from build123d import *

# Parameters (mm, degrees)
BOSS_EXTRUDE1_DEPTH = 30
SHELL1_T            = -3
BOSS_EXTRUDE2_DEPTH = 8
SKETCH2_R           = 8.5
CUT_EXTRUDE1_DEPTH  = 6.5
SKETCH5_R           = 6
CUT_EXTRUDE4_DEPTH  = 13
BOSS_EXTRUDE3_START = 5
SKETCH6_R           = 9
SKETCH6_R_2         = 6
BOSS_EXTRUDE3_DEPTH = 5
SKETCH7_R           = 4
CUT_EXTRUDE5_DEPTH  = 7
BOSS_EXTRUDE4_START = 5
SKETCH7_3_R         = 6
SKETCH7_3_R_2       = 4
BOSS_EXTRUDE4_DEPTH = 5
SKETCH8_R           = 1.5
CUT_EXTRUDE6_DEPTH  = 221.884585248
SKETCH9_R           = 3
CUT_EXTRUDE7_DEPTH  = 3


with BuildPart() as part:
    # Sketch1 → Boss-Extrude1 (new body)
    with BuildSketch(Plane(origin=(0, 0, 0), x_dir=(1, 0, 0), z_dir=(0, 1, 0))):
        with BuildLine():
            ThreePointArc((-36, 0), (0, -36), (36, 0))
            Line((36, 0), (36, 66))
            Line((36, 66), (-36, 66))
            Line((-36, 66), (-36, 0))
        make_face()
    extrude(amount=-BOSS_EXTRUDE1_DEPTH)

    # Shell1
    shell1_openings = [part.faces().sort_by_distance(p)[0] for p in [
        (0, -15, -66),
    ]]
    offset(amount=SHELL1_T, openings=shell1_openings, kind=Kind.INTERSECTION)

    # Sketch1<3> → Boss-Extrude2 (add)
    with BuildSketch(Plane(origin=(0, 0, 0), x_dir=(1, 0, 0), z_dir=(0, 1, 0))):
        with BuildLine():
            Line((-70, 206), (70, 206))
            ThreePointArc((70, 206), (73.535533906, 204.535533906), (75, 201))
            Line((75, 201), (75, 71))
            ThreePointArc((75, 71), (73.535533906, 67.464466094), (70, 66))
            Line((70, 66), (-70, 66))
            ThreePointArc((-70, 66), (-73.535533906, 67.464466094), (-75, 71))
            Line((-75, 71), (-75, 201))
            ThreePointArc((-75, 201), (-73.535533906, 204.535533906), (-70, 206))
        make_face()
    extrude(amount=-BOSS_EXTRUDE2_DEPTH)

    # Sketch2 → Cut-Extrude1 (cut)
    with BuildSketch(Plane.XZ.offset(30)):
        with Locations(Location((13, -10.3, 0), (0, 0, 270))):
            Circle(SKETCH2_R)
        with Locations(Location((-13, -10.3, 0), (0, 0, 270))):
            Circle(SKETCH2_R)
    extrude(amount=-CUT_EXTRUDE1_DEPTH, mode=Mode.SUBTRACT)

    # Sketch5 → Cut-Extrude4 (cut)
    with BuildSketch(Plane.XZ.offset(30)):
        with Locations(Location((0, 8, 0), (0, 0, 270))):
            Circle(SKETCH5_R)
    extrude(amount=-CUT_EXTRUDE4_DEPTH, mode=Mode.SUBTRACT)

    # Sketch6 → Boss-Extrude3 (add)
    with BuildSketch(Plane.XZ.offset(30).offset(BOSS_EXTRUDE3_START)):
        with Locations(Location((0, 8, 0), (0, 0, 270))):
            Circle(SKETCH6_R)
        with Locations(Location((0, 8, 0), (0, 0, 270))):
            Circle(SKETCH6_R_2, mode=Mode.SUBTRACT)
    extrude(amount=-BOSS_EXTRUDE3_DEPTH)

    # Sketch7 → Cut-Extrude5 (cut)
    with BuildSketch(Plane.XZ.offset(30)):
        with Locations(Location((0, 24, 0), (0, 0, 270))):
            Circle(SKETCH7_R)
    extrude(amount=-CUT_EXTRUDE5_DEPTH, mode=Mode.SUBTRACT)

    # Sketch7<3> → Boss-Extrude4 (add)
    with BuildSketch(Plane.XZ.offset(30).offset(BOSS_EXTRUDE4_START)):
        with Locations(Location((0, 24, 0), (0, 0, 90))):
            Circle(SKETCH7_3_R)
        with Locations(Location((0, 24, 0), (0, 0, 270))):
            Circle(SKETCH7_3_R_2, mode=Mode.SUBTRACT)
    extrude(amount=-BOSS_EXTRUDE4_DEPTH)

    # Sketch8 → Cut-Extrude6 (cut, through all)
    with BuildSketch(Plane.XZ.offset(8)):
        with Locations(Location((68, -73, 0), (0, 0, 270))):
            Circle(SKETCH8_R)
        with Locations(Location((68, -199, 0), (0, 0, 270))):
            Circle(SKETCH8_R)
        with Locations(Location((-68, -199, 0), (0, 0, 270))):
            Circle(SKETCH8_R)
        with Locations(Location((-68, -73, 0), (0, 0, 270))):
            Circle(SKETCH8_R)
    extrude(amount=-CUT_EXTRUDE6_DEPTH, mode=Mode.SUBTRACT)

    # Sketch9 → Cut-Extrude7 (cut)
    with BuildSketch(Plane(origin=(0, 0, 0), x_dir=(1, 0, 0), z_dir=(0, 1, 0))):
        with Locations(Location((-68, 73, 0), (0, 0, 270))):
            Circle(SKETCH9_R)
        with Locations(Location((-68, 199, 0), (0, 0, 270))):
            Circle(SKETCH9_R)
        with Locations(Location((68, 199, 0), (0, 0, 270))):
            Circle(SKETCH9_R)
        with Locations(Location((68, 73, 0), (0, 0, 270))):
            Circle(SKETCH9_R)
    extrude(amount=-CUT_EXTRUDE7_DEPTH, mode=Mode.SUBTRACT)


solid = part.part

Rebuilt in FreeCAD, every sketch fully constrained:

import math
import FreeCAD as App
import Part
import Sketcher


def faces_at(feature, points):
    """Names of the faces that lie closest to the given points."""
    faces = feature.Shape.Faces
    near = lambda p: min(range(len(faces)), key=lambda i: faces[i].distToShape(Part.Vertex(*p))[0])
    return sorted({f"Face{near(p) + 1}" for p in points})

doc = App.newDocument("Part")
body = doc.addObject("PartDesign::Body", "Body")

# Sketch on XZ plane
sketch1 = doc.addObject("Sketcher::SketchObject", "Sketch")
body.addObject(sketch1)
sketch1.AttachmentSupport = (doc.XZ_Plane, [""])
sketch1.MapMode = "FlatFace"
sketch1.addGeometry(Part.ArcOfCircle(Part.Circle(App.Vector(0, 0, 0), App.Vector(0, 0, 1), 36), math.radians(0), math.radians(180)), False)
sketch1.addGeometry(Part.LineSegment(App.Vector(36, 0, 0), App.Vector(36, -66, 0)), False)
sketch1.addGeometry(Part.LineSegment(App.Vector(36, -66, 0), App.Vector(-36, -66, 0)), False)
sketch1.addGeometry(Part.LineSegment(App.Vector(-36, -66, 0), App.Vector(-36, 0, 0)), False)
sketch1.addConstraint(Sketcher.Constraint("Tangent", 0, 1, 1, 1))
sketch1.addConstraint(Sketcher.Constraint("Coincident", 1, 2, 2, 1))
sketch1.addConstraint(Sketcher.Constraint("Coincident", 2, 2, 3, 1))
sketch1.addConstraint(Sketcher.Constraint("Tangent", 3, 2, 0, 2))
sketch1.addConstraint(Sketcher.Constraint("Vertical", 1))
sketch1.addConstraint(Sketcher.Constraint("Horizontal", 2))
sketch1.addConstraint(Sketcher.Constraint("Vertical", 3))
sketch1.addConstraint(Sketcher.Constraint("Coincident", 0, 3, -1, 1))
sketch1.addConstraint(Sketcher.Constraint("Radius", 0, 36.0))
sketch1.addConstraint(Sketcher.Constraint("DistanceY", 1, 2, 1, 1, 66.0))
pad1 = doc.addObject("PartDesign::Pad", "Pad")
body.addObject(pad1)
pad1.Profile = sketch1
pad1.Length = 30
doc.recompute()

thickness = doc.addObject("PartDesign::Thickness", "Thickness")
body.addObject(thickness)
thickness.Base = (pad1, faces_at(pad1, [(0, -15, -66)]))
thickness.Value = 3
thickness.Reversed = True
thickness.Join = "Intersection"

# Sketch on XZ plane
sketch2 = doc.addObject("Sketcher::SketchObject", "Sketch001")
body.addObject(sketch2)
sketch2.AttachmentSupport = (doc.XZ_Plane, [""])
sketch2.MapMode = "FlatFace"
sketch2.addGeometry(Part.LineSegment(App.Vector(70, -206, 0), App.Vector(-70, -206, 0)), False)
sketch2.addGeometry(Part.ArcOfCircle(Part.Circle(App.Vector(-70, -201, 0), App.Vector(0, 0, 1), 5), math.radians(180), math.radians(270)), False)
sketch2.addGeometry(Part.LineSegment(App.Vector(-75, -201, 0), App.Vector(-75, -71, 0)), False)
sketch2.addGeometry(Part.ArcOfCircle(Part.Circle(App.Vector(-70, -71, 0), App.Vector(0, 0, 1), 5), math.radians(90), math.radians(180)), False)
sketch2.addGeometry(Part.LineSegment(App.Vector(-70, -66, 0), App.Vector(70, -66, 0)), False)
sketch2.addGeometry(Part.ArcOfCircle(Part.Circle(App.Vector(70, -71, 0), App.Vector(0, 0, 1), 5), math.radians(0), math.radians(90)), False)
sketch2.addGeometry(Part.LineSegment(App.Vector(75, -71, 0), App.Vector(75, -201, 0)), False)
sketch2.addGeometry(Part.ArcOfCircle(Part.Circle(App.Vector(70, -201, 0), App.Vector(0, 0, 1), 5), math.radians(-90), math.radians(0)), False)
sketch2.addConstraint(Sketcher.Constraint("Tangent", 0, 2, 1, 2))
sketch2.addConstraint(Sketcher.Constraint("Tangent", 1, 1, 2, 1))
sketch2.addConstraint(Sketcher.Constraint("Tangent", 2, 2, 3, 2))
sketch2.addConstraint(Sketcher.Constraint("Tangent", 3, 1, 4, 1))
sketch2.addConstraint(Sketcher.Constraint("Tangent", 4, 2, 5, 2))
sketch2.addConstraint(Sketcher.Constraint("Tangent", 5, 1, 6, 1))
sketch2.addConstraint(Sketcher.Constraint("Tangent", 6, 2, 7, 2))
sketch2.addConstraint(Sketcher.Constraint("Tangent", 7, 1, 0, 1))
sketch2.addConstraint(Sketcher.Constraint("Horizontal", 0))
sketch2.addConstraint(Sketcher.Constraint("Vertical", 2))
sketch2.addConstraint(Sketcher.Constraint("Horizontal", 4))
sketch2.addConstraint(Sketcher.Constraint("Vertical", 6))
sketch2.addConstraint(Sketcher.Constraint("Equal", 1, 3))
sketch2.addConstraint(Sketcher.Constraint("Equal", 3, 5))
sketch2.addConstraint(Sketcher.Constraint("Equal", 5, 7))
sketch2.addConstraint(Sketcher.Constraint("Radius", 1, 5.0))
sketch2.addConstraint(Sketcher.Constraint("DistanceX", 0, 2, 0, 1, 140.0))
sketch2.addConstraint(Sketcher.Constraint("DistanceY", 2, 1, 2, 2, 130.0))
sketch2.addConstraint(Sketcher.Constraint("DistanceX", 1, 3, -1, 1, 70.0))
sketch2.addConstraint(Sketcher.Constraint("DistanceY", 1, 3, -1, 1, 201.0))
pad2 = doc.addObject("PartDesign::Pad", "Pad001")
body.addObject(pad2)
pad2.Profile = sketch2
pad2.Length = 8

# Sketch on XZ plane
sketch3 = doc.addObject("Sketcher::SketchObject", "Sketch002")
body.addObject(sketch3)
sketch3.AttachmentSupport = (doc.XZ_Plane, [""])
sketch3.MapMode = "FlatFace"
sketch3.AttachmentOffset = App.Placement(App.Vector(0, 0, 30), App.Rotation())
sketch3.addGeometry(Part.Circle(App.Vector(13, -10.3, 0), App.Vector(0, 0, 1), 8.5), False)
sketch3.addGeometry(Part.Circle(App.Vector(-13, -10.3, 0), App.Vector(0, 0, 1), 8.5), False)
sketch3.addConstraint(Sketcher.Constraint("Equal", 0, 1))
sketch3.addConstraint(Sketcher.Constraint("Symmetric", 0, 3, 1, 3, -2))
sketch3.addConstraint(Sketcher.Constraint("Diameter", 0, 17.0))
sketch3.addConstraint(Sketcher.Constraint("DistanceX", -1, 1, 0, 3, 13.0))
sketch3.addConstraint(Sketcher.Constraint("DistanceY", 0, 3, -1, 1, 10.3))
pocket1 = doc.addObject("PartDesign::Pocket", "Pocket")
body.addObject(pocket1)
pocket1.Profile = sketch3
pocket1.Length = 6.5

# Sketch on XZ plane
sketch4 = doc.addObject("Sketcher::SketchObject", "Sketch003")
body.addObject(sketch4)
sketch4.AttachmentSupport = (doc.XZ_Plane, [""])
sketch4.MapMode = "FlatFace"
sketch4.AttachmentOffset = App.Placement(App.Vector(0, 0, 30), App.Rotation())
sketch4.addGeometry(Part.Circle(App.Vector(0, 8, 0), App.Vector(0, 0, 1), 6), False)
sketch4.addConstraint(Sketcher.Constraint("PointOnObject", 0, 3, -2))
sketch4.addConstraint(Sketcher.Constraint("Diameter", 0, 12.0))
sketch4.addConstraint(Sketcher.Constraint("DistanceY", -1, 1, 0, 3, 8.0))
pocket2 = doc.addObject("PartDesign::Pocket", "Pocket001")
body.addObject(pocket2)
pocket2.Profile = sketch4
pocket2.Length = 13

# Sketch on XZ plane
sketch5 = doc.addObject("Sketcher::SketchObject", "Sketch004")
body.addObject(sketch5)
sketch5.AttachmentSupport = (doc.XZ_Plane, [""])
sketch5.MapMode = "FlatFace"
sketch5.AttachmentOffset = App.Placement(App.Vector(0, 0, 35), App.Rotation())
sketch5.addGeometry(Part.Circle(App.Vector(0, 8, 0), App.Vector(0, 0, 1), 9), False)
sketch5.addGeometry(Part.Circle(App.Vector(0, 8, 0), App.Vector(0, 0, 1), 6), False)
sketch5.addConstraint(Sketcher.Constraint("Coincident", 1, 3, 0, 3))
sketch5.addConstraint(Sketcher.Constraint("PointOnObject", 0, 3, -2))
sketch5.addConstraint(Sketcher.Constraint("Diameter", 0, 18.0))
sketch5.addConstraint(Sketcher.Constraint("Diameter", 1, 12.0))
sketch5.addConstraint(Sketcher.Constraint("DistanceY", -1, 1, 0, 3, 8.0))
pad3 = doc.addObject("PartDesign::Pad", "Pad002")
body.addObject(pad3)
pad3.Profile = sketch5
pad3.Length = 5
pad3.Reversed = True

# Sketch on XZ plane
sketch6 = doc.addObject("Sketcher::SketchObject", "Sketch005")
body.addObject(sketch6)
sketch6.AttachmentSupport = (doc.XZ_Plane, [""])
sketch6.MapMode = "FlatFace"
sketch6.AttachmentOffset = App.Placement(App.Vector(0, 0, 30), App.Rotation())
sketch6.addGeometry(Part.Circle(App.Vector(0, 24, 0), App.Vector(0, 0, 1), 4), False)
sketch6.addConstraint(Sketcher.Constraint("PointOnObject", 0, 3, -2))
sketch6.addConstraint(Sketcher.Constraint("Diameter", 0, 8.0))
sketch6.addConstraint(Sketcher.Constraint("DistanceY", -1, 1, 0, 3, 24.0))
pocket3 = doc.addObject("PartDesign::Pocket", "Pocket002")
body.addObject(pocket3)
pocket3.Profile = sketch6
pocket3.Length = 7

# Sketch on XZ plane
sketch7 = doc.addObject("Sketcher::SketchObject", "Sketch006")
body.addObject(sketch7)
sketch7.AttachmentSupport = (doc.XZ_Plane, [""])
sketch7.MapMode = "FlatFace"
sketch7.AttachmentOffset = App.Placement(App.Vector(0, 0, 35), App.Rotation())
sketch7.addGeometry(Part.Circle(App.Vector(0, 24, 0), App.Vector(0, 0, 1), 6), False)
sketch7.addGeometry(Part.Circle(App.Vector(0, 24, 0), App.Vector(0, 0, 1), 4), False)
sketch7.addConstraint(Sketcher.Constraint("Coincident", 1, 3, 0, 3))
sketch7.addConstraint(Sketcher.Constraint("PointOnObject", 0, 3, -2))
sketch7.addConstraint(Sketcher.Constraint("Diameter", 0, 12.0))
sketch7.addConstraint(Sketcher.Constraint("Diameter", 1, 8.0))
sketch7.addConstraint(Sketcher.Constraint("DistanceY", -1, 1, 0, 3, 24.0))
pad4 = doc.addObject("PartDesign::Pad", "Pad003")
body.addObject(pad4)
pad4.Profile = sketch7
pad4.Length = 5
pad4.Reversed = True

# Sketch on XZ plane
sketch8 = doc.addObject("Sketcher::SketchObject", "Sketch007")
body.addObject(sketch8)
sketch8.AttachmentSupport = (doc.XZ_Plane, [""])
sketch8.MapMode = "FlatFace"
sketch8.AttachmentOffset = App.Placement(App.Vector(0, 0, 8), App.Rotation())
sketch8.addGeometry(Part.Circle(App.Vector(68, -73, 0), App.Vector(0, 0, 1), 1.5), False)
sketch8.addGeometry(Part.Circle(App.Vector(68, -199, 0), App.Vector(0, 0, 1), 1.5), False)
sketch8.addGeometry(Part.Circle(App.Vector(-68, -199, 0), App.Vector(0, 0, 1), 1.5), False)
sketch8.addGeometry(Part.Circle(App.Vector(-68, -73, 0), App.Vector(0, 0, 1), 1.5), False)
sketch8.addConstraint(Sketcher.Constraint("Equal", 0, 1))
sketch8.addConstraint(Sketcher.Constraint("Equal", 1, 2))
sketch8.addConstraint(Sketcher.Constraint("Equal", 2, 3))
sketch8.addConstraint(Sketcher.Constraint("Symmetric", 1, 3, 2, 3, -2))
sketch8.addConstraint(Sketcher.Constraint("Symmetric", 0, 3, 3, 3, -2))
sketch8.addConstraint(Sketcher.Constraint("Vertical", 0, 3, 1, 3))
sketch8.addConstraint(Sketcher.Constraint("Diameter", 0, 3.0))
sketch8.addConstraint(Sketcher.Constraint("DistanceX", -1, 1, 0, 3, 68.0))
sketch8.addConstraint(Sketcher.Constraint("DistanceY", 0, 3, -1, 1, 73.0))
sketch8.addConstraint(Sketcher.Constraint("DistanceY", 1, 3, -1, 1, 199.0))
pocket4 = doc.addObject("PartDesign::Pocket", "Pocket003")
body.addObject(pocket4)
pocket4.Profile = sketch8
pocket4.Type = "ThroughAll"

# Sketch on XZ plane
sketch9 = doc.addObject("Sketcher::SketchObject", "Sketch008")
body.addObject(sketch9)
sketch9.AttachmentSupport = (doc.XZ_Plane, [""])
sketch9.MapMode = "FlatFace"
sketch9.addGeometry(Part.Circle(App.Vector(-68, -73, 0), App.Vector(0, 0, 1), 3), False)
sketch9.addGeometry(Part.Circle(App.Vector(-68, -199, 0), App.Vector(0, 0, 1), 3), False)
sketch9.addGeometry(Part.Circle(App.Vector(68, -199, 0), App.Vector(0, 0, 1), 3), False)
sketch9.addGeometry(Part.Circle(App.Vector(68, -73, 0), App.Vector(0, 0, 1), 3), False)
sketch9.addConstraint(Sketcher.Constraint("Equal", 0, 1))
sketch9.addConstraint(Sketcher.Constraint("Equal", 1, 2))
sketch9.addConstraint(Sketcher.Constraint("Equal", 2, 3))
sketch9.addConstraint(Sketcher.Constraint("Symmetric", 1, 3, 2, 3, -2))
sketch9.addConstraint(Sketcher.Constraint("Symmetric", 0, 3, 3, 3, -2))
sketch9.addConstraint(Sketcher.Constraint("Vertical", 0, 3, 1, 3))
sketch9.addConstraint(Sketcher.Constraint("Diameter", 0, 6.0))
sketch9.addConstraint(Sketcher.Constraint("DistanceX", 0, 3, -1, 1, 68.0))
sketch9.addConstraint(Sketcher.Constraint("DistanceY", 0, 3, -1, 1, 73.0))
sketch9.addConstraint(Sketcher.Constraint("DistanceY", 1, 3, -1, 1, 199.0))
pocket5 = doc.addObject("PartDesign::Pocket", "Pocket004")
body.addObject(pocket5)
pocket5.Profile = sketch9
pocket5.Length = 3
pocket5.Reversed = True

doc.recompute()
